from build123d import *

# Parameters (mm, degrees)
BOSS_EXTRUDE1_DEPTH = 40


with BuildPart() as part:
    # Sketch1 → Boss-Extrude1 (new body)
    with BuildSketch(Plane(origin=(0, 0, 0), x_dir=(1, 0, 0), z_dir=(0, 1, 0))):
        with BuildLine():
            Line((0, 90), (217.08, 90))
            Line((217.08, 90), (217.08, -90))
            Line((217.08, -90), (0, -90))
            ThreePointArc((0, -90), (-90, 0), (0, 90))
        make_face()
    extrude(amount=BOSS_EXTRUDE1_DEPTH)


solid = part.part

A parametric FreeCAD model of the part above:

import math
import FreeCAD as App
import Part
import Sketcher

V = App.Vector

doc = App.newDocument("Part")
params = doc.addObject("Spreadsheet::Sheet", "Params")
for row, (alias, value) in enumerate([
    ("sketch1_radius", "90 mm"),
    ("sketch1_width", "217.08 mm"),
    ("pad1_length", "40 mm"),
], start=1):
    params.set(f"A{row}", alias)
    params.set(f"B{row}", "=" + value)
    params.setAlias(f"B{row}", alias)

body = doc.addObject("PartDesign::Body", "Body")

# Sketch on XZ plane
sketch1 = body.newObject("Sketcher::SketchObject", "Sketch")
sketch1.AttachmentSupport = (doc.getObject("XZ_Plane"), [""])
sketch1.MapMode = "FlatFace"
sketch1.addGeometry(Part.LineSegment(V(217.08, -90, 0), V(0, -90, 0)), False)
sketch1.addGeometry(Part.ArcOfCircle(Part.Circle(V(0, 0, 0), V(0, 0, 1), 90), math.radians(90), math.radians(270)), False)
sketch1.addGeometry(Part.LineSegment(V(0, 90, 0), V(217.08, 90, 0)), False)
sketch1.addGeometry(Part.LineSegment(V(217.08, 90, 0), V(217.08, -90, 0)), False)
sketch1.addConstraint(Sketcher.Constraint("Tangent", 0, 2, 1, 2))
sketch1.addConstraint(Sketcher.Constraint("Tangent", 1, 1, 2, 1))
sketch1.addConstraint(Sketcher.Constraint("Coincident", 2, 2, 3, 1))
sketch1.addConstraint(Sketcher.Constraint("Coincident", 3, 2, 0, 1))
sketch1.addConstraint(Sketcher.Constraint("Horizontal", 0))
sketch1.addConstraint(Sketcher.Constraint("Horizontal", 2))
sketch1.addConstraint(Sketcher.Constraint("Vertical", 3))
sketch1.addConstraint(Sketcher.Constraint("Coincident", 1, 3, -1, 1))
sketch1.addConstraint(Sketcher.Constraint("Radius", 1, 90.0))
sketch1.addConstraint(Sketcher.Constraint("DistanceX", 0, 2, 0, 1, 217.08))
sketch1.setExpression("Constraints[8]", "Params.sketch1_radius")
sketch1.setExpression("Constraints[9]", "Params.sketch1_width")
pad1 = body.newObject("PartDesign::Pad", "Pad")
pad1.Profile = sketch1
pad1.setExpression("Length", "Params.pad1_length")
pad1.Reversed = True

doc.recompute()
